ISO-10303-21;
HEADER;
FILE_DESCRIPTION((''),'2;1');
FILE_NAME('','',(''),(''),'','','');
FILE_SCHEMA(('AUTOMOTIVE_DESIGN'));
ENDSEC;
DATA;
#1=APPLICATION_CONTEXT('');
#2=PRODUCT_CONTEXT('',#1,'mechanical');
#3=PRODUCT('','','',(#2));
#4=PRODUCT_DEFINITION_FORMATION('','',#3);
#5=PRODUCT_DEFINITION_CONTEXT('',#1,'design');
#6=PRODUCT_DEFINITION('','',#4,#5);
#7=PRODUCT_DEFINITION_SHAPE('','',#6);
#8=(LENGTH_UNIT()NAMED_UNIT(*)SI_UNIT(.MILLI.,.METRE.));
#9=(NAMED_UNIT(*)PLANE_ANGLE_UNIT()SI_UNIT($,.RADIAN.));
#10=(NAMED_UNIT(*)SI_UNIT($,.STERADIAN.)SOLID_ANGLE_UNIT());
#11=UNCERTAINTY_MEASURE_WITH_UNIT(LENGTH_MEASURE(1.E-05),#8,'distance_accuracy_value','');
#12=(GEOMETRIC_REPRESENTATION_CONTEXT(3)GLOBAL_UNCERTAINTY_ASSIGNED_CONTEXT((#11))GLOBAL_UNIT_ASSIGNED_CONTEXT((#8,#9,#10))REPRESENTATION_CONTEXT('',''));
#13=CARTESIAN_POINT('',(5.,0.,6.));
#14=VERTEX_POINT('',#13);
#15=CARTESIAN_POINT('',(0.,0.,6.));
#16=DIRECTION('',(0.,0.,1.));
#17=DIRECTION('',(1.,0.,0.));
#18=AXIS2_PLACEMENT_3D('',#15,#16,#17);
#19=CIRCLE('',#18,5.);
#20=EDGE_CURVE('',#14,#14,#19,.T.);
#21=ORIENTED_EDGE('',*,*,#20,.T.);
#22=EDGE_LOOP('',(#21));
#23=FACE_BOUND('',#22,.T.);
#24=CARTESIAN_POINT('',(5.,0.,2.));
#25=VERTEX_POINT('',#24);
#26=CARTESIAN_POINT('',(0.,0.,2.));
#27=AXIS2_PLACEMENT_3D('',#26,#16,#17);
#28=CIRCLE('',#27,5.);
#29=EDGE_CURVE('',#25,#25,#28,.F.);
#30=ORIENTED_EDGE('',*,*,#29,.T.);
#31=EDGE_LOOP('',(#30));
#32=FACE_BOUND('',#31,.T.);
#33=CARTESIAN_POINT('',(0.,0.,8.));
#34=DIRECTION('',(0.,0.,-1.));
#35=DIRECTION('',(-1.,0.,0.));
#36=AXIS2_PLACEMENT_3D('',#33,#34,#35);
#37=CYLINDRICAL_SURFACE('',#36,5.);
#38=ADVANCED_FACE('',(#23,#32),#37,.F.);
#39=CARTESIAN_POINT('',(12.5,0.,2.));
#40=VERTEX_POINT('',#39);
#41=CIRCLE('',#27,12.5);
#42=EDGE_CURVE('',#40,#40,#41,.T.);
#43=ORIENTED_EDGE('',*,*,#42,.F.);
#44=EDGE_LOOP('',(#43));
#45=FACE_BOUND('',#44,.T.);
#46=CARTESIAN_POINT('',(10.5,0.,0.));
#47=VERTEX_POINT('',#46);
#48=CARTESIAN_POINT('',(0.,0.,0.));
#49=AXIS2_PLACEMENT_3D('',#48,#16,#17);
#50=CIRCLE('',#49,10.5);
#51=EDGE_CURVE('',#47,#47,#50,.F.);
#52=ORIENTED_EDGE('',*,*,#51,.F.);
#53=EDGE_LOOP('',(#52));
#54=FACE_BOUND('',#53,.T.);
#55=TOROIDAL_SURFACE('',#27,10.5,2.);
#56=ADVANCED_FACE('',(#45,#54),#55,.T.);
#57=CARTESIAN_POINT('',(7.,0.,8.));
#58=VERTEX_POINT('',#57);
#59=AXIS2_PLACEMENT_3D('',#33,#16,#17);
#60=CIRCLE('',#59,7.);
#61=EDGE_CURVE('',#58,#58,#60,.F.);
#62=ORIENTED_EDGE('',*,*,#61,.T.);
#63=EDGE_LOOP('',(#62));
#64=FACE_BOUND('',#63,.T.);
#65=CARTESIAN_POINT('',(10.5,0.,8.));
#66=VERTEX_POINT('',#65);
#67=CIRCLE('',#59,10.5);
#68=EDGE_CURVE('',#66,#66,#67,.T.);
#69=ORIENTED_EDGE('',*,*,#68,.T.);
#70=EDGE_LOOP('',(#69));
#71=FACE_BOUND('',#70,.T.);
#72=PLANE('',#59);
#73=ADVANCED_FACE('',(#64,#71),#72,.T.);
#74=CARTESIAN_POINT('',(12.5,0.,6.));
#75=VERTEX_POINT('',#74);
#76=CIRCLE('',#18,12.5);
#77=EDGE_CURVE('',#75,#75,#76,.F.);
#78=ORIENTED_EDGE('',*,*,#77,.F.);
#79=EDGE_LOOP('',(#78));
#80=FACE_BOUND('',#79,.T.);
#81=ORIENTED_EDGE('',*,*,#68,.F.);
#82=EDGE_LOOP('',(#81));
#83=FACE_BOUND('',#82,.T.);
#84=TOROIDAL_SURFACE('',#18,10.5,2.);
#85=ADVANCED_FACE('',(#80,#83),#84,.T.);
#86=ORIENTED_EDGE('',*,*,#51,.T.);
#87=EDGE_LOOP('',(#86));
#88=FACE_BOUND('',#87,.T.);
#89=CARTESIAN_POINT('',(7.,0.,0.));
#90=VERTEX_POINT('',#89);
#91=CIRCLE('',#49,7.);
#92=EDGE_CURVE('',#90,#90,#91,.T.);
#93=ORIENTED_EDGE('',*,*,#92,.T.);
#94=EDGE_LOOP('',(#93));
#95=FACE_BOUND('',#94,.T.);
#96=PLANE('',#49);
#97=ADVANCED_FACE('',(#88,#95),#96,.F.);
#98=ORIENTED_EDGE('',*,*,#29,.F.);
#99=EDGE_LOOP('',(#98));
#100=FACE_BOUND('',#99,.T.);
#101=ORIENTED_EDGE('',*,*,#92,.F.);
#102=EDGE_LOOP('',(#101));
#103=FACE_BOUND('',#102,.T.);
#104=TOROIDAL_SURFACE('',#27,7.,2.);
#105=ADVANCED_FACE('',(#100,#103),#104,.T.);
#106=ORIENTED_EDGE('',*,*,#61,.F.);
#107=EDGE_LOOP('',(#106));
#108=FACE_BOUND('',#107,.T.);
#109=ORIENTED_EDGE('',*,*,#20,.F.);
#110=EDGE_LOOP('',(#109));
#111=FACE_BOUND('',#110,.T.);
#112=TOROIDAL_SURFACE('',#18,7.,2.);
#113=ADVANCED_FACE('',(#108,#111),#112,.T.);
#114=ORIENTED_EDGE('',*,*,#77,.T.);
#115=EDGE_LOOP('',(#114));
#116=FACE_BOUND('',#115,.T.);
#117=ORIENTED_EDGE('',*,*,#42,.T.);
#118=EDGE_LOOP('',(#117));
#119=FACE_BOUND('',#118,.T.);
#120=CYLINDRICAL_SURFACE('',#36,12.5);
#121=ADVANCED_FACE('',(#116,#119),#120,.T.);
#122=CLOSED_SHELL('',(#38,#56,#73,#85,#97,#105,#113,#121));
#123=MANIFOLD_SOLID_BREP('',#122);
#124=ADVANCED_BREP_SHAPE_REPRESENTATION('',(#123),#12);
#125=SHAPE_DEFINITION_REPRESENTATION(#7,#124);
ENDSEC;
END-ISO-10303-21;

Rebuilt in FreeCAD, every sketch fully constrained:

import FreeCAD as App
import Part
import Sketcher
Q = App.Units.Quantity


def edges_at(feature, points):
    """Names of the edges that pass closest to the given points."""
    edges = feature.Shape.Edges
    near = lambda p: min(range(len(edges)), key=lambda i: edges[i].distToShape(Part.Vertex(*p))[0])
    return sorted({f"Edge{near(p) + 1}" for p in points})

doc = App.newDocument("Part")
body = doc.addObject("PartDesign::Body", "Body")

sketch1 = body.newObject("Sketcher::SketchObject", "Sketch")
sketch1.AttachmentSupport = (doc.getObject("XY_Plane"), [""])
sketch1.MapMode = "FlatFace"
sketch1.addGeometry([
    Part.Circle(App.Vector(0, 0, 0), App.Vector(0, 0, 1), 12),
    Part.Circle(App.Vector(0, 0, 0), App.Vector(0, 0, 1), 5),
], False)
sketch1.addConstraint([
    Sketcher.Constraint("Coincident", 0, 3, -1, 1),
    Sketcher.Constraint("Coincident", 1, 3, -1, 1),
    Sketcher.Constraint("Diameter", 0, Q("25 mm")),
    Sketcher.Constraint("Diameter", 1, Q("10 mm")),
])
pad1 = body.newObject("PartDesign::Pad", "Pad")
pad1.Profile = sketch1
pad1.Length = 8
doc.recompute()

fillet = body.newObject("PartDesign::Fillet", "Fillet")
fillet.Base = (pad1, edges_at(pad1, [
    (-12.5, 0, 0),
    (-12.5, 0, 8),
    (-5, 0, 0),
    (-5, 0, 8),
]))
fillet.Radius = 2

doc.recompute()
